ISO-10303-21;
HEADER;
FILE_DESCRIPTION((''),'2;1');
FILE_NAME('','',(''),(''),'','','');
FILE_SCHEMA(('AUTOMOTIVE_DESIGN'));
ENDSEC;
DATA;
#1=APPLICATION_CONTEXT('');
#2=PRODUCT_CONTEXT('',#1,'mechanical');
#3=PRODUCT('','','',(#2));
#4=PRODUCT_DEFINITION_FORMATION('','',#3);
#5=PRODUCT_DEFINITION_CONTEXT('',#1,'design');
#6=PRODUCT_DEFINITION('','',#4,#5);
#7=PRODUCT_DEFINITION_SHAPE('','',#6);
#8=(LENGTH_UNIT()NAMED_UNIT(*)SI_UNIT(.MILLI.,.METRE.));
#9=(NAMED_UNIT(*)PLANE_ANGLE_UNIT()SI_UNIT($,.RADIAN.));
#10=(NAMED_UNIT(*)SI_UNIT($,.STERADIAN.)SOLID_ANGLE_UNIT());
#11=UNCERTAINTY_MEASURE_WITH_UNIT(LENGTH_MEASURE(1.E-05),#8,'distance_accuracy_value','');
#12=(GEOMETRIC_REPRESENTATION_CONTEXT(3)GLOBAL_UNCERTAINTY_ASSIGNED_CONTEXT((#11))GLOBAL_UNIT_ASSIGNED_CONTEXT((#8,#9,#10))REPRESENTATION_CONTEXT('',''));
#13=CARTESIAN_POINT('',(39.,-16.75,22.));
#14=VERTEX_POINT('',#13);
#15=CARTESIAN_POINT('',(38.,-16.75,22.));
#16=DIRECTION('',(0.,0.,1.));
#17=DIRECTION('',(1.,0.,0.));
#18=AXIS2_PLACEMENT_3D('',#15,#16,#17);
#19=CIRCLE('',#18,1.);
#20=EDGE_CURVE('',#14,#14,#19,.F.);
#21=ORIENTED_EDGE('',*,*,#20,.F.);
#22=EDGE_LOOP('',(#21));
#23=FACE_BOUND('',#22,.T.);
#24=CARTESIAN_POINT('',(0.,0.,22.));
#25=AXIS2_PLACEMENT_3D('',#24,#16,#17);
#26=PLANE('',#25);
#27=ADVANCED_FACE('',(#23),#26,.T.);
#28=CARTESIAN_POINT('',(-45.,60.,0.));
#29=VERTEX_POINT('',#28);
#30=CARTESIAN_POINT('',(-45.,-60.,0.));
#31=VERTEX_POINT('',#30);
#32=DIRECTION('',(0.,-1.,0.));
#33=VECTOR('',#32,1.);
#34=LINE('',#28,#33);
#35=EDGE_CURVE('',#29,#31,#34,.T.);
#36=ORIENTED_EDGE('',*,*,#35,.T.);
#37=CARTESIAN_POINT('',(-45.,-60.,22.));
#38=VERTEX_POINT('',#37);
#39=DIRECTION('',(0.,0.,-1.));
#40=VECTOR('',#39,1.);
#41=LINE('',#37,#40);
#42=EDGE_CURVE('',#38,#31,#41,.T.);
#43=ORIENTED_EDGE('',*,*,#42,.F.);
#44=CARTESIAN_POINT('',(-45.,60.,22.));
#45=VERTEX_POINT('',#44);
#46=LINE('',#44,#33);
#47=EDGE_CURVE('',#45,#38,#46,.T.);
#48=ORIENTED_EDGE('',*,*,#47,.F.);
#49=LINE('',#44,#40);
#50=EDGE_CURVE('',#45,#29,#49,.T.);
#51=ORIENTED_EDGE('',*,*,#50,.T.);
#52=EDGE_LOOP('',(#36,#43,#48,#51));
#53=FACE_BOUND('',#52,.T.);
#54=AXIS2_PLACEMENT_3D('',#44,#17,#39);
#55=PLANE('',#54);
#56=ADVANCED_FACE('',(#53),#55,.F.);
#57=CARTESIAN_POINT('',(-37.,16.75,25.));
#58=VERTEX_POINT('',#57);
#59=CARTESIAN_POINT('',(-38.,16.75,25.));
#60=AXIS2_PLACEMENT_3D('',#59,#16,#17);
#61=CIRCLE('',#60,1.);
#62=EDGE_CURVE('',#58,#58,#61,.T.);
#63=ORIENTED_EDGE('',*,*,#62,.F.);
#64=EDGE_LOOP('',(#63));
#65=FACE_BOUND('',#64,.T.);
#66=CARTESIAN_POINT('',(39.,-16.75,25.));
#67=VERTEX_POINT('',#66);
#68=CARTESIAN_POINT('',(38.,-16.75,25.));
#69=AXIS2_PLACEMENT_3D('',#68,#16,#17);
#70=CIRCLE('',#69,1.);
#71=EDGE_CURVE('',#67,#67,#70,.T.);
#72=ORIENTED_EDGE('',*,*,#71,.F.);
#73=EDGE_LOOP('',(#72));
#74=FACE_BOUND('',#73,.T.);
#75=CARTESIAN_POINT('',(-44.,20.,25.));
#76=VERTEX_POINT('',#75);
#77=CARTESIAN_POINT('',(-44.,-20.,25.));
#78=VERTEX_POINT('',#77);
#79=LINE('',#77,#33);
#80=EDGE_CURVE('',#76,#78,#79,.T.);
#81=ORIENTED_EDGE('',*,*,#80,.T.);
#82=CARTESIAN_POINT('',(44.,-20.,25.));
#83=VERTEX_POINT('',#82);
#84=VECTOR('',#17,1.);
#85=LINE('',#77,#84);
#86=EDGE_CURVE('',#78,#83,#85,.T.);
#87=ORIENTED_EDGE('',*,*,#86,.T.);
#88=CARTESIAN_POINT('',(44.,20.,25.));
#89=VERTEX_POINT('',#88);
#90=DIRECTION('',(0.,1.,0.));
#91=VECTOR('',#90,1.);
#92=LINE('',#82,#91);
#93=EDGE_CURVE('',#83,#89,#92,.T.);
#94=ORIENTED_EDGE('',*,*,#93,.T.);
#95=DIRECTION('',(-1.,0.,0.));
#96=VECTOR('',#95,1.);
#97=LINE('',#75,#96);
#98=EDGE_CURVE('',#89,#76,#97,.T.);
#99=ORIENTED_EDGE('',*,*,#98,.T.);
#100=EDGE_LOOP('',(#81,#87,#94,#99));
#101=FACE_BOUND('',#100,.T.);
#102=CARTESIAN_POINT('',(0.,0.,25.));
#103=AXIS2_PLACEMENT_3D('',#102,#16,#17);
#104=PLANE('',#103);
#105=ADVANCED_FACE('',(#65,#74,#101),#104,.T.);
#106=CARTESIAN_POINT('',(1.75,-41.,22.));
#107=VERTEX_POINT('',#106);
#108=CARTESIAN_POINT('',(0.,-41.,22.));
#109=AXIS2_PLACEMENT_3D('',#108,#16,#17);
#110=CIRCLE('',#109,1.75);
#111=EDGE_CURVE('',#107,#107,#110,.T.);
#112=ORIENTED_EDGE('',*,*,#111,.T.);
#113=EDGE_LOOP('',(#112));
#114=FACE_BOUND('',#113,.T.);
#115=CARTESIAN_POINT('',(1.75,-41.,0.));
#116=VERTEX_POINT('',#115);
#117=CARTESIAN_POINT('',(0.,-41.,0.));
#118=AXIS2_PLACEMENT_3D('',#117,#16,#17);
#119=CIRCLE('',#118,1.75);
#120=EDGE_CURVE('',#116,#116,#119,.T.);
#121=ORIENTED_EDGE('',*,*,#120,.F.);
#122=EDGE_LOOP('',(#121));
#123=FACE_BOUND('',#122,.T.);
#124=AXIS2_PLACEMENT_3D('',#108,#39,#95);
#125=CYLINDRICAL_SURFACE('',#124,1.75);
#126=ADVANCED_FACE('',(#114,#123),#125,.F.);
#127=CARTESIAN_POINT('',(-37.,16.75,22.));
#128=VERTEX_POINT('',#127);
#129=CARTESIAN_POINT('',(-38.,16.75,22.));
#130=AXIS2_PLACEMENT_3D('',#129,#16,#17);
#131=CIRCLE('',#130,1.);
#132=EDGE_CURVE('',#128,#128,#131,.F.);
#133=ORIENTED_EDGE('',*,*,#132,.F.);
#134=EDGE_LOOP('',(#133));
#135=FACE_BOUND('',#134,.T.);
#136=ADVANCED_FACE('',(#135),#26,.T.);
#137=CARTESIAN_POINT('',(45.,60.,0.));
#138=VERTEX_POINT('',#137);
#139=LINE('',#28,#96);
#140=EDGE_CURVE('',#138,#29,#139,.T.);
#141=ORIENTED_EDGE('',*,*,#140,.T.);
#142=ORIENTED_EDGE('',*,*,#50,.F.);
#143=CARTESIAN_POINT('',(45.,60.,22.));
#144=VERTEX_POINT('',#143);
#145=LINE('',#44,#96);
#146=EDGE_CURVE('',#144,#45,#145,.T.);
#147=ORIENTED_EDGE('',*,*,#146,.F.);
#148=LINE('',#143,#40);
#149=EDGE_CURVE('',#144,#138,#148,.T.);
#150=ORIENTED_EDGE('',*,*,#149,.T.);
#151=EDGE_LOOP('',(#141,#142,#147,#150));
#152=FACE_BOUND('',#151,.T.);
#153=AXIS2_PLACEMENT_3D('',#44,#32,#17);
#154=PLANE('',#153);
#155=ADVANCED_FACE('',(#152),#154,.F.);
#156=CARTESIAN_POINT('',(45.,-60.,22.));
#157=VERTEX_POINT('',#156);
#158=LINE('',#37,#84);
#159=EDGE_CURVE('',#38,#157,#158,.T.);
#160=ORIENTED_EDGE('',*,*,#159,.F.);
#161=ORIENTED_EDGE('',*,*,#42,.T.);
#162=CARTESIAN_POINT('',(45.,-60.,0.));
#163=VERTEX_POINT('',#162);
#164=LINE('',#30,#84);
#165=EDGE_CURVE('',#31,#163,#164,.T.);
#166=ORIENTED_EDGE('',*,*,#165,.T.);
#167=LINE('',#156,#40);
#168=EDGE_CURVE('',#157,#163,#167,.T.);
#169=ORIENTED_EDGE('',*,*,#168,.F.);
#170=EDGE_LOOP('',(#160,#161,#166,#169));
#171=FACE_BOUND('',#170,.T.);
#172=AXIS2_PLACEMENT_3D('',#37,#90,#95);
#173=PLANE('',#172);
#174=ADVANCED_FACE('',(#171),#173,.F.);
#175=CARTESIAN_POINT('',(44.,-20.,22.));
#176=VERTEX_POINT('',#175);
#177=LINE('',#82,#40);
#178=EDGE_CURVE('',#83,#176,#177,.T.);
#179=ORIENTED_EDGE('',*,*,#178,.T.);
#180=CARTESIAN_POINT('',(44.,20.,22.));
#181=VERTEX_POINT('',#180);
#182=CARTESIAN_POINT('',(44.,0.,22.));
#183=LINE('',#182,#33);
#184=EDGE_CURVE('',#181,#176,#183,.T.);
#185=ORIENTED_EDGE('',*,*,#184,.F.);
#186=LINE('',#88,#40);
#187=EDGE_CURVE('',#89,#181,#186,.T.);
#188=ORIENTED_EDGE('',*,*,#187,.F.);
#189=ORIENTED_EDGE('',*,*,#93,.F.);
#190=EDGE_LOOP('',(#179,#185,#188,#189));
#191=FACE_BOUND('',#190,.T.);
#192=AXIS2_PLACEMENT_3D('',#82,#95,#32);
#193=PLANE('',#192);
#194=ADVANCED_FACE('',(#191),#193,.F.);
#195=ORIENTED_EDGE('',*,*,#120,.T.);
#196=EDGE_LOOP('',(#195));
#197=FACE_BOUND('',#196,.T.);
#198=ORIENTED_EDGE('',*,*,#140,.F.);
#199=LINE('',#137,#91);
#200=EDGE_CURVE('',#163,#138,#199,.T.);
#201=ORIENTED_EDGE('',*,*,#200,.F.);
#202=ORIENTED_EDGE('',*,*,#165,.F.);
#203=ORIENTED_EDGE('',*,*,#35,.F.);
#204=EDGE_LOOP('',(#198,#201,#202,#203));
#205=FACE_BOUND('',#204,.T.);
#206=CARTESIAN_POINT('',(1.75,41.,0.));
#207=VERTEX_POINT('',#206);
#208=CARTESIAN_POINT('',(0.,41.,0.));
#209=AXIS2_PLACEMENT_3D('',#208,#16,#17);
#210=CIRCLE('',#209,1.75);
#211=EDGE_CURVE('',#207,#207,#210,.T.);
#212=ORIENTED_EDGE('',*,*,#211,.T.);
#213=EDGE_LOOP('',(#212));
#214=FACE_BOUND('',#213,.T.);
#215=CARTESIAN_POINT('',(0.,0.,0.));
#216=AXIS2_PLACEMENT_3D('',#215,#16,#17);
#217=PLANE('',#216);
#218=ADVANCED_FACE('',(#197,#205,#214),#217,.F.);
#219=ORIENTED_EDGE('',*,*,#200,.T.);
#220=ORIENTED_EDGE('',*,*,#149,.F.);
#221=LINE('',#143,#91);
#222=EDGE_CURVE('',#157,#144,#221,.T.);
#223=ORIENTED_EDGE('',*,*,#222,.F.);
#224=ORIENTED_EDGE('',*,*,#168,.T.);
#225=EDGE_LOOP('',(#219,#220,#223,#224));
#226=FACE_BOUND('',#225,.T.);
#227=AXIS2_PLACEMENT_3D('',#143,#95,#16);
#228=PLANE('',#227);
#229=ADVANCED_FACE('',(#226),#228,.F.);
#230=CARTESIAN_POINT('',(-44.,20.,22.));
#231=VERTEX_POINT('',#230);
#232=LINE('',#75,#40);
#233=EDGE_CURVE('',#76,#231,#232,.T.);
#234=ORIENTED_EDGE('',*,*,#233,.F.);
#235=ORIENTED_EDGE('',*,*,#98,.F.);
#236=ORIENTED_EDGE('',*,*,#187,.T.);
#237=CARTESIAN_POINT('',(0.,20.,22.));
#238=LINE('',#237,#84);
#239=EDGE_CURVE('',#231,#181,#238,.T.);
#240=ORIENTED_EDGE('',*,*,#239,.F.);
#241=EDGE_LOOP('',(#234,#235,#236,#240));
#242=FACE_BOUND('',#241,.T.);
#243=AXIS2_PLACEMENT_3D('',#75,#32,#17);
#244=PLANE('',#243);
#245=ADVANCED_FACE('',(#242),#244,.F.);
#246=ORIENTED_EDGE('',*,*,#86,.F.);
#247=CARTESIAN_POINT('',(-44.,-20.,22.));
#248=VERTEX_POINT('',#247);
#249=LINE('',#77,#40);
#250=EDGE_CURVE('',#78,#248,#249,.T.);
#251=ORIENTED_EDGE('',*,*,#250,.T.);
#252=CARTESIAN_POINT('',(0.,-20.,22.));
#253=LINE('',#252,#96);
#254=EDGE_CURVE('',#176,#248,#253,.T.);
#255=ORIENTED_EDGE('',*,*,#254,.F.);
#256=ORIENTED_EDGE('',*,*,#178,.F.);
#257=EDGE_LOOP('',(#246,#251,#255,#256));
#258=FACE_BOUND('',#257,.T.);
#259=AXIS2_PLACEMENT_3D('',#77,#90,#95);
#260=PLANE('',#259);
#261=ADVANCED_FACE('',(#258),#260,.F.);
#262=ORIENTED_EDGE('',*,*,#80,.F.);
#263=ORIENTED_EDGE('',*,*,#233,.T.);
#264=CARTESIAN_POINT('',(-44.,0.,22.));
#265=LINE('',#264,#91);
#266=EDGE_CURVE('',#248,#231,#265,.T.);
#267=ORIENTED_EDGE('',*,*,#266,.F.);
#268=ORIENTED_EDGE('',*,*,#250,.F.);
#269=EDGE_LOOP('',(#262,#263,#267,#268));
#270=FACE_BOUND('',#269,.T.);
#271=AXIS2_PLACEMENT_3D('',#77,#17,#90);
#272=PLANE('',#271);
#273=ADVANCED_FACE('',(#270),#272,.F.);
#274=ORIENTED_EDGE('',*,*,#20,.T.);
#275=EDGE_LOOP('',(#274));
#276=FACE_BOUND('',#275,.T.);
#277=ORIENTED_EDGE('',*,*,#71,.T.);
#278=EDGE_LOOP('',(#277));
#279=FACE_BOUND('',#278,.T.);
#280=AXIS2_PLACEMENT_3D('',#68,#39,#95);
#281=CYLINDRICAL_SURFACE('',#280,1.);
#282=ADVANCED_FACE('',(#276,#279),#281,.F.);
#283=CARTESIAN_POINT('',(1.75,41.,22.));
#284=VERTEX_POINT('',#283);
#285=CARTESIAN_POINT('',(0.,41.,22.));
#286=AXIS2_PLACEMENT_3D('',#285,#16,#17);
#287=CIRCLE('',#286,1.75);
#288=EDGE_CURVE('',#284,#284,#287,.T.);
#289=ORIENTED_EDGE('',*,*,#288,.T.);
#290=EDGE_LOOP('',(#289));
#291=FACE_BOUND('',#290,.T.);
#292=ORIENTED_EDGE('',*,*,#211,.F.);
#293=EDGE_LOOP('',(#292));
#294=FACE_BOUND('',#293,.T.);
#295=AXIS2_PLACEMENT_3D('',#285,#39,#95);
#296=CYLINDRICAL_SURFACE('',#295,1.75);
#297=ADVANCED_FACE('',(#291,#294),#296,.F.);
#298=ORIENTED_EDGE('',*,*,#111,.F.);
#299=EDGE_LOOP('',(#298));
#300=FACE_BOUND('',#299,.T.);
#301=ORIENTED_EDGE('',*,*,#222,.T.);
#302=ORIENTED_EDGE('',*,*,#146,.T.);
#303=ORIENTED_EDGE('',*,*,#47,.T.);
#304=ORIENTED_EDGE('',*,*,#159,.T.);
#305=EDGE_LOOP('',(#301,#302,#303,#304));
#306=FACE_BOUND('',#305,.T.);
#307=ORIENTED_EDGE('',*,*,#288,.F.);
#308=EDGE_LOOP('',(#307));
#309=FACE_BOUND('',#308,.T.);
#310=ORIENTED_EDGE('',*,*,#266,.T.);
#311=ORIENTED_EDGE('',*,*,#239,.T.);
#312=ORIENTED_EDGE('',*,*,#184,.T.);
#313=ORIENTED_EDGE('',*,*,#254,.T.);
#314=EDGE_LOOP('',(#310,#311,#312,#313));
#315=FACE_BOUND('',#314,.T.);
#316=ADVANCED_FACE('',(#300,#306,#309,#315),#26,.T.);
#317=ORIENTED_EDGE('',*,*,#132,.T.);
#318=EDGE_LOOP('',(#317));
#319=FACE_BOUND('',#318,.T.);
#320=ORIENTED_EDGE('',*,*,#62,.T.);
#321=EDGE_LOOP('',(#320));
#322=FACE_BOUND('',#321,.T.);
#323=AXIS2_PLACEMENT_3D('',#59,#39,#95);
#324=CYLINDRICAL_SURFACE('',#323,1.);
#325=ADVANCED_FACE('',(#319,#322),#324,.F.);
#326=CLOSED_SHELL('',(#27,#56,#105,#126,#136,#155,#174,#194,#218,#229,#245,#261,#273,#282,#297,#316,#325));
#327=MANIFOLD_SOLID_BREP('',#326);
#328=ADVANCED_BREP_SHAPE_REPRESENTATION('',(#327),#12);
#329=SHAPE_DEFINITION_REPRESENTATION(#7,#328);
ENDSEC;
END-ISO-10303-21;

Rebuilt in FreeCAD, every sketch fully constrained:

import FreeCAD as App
import Part
import Sketcher
from FreeCAD import Vector
Q = App.Units.Quantity

doc = App.newDocument("Part")
body = doc.addObject("PartDesign::Body", "Body")

sketch1 = doc.addObject("Sketcher::SketchObject", "Sketch")
body.addObject(sketch1)
sketch1.AttachmentSupport = (doc.XY_Plane, [""])
sketch1.MapMode = "FlatFace"
sketch1.addGeometry([
    Part.LineSegment(Vector(-45, 60, 0), Vector(-45, -60, 0)),
    Part.LineSegment(Vector(-45, -60, 0), Vector(45, -60, 0)),
    Part.LineSegment(Vector(45, -60, 0), Vector(45, 60, 0)),
    Part.LineSegment(Vector(45, 60, 0), Vector(-45, 60, 0)),
    Part.Circle(Vector(0, -41, 0), Vector(0, 0, 1), 1.8),
    Part.Circle(Vector(0, 41, 0), Vector(0, 0, 1), 1.8),
], False)
sketch1.addConstraint([
    Sketcher.Constraint("Coincident", 0, 2, 1, 1),
    Sketcher.Constraint("Coincident", 1, 2, 2, 1),
    Sketcher.Constraint("Coincident", 2, 2, 3, 1),
    Sketcher.Constraint("Coincident", 3, 2, 0, 1),
    Sketcher.Constraint("Vertical", 0),
    Sketcher.Constraint("Horizontal", 1),
    Sketcher.Constraint("Vertical", 2),
    Sketcher.Constraint("Horizontal", 3),
    Sketcher.Constraint("Equal", 4, 5),
    Sketcher.Constraint("Symmetric", 4, 3, 5, 3, -1, 1),
    Sketcher.Constraint("Symmetric", 0, 2, 2, 2, -1, 1),
    Sketcher.Constraint("PointOnObject", 4, 3, -2),
    Sketcher.Constraint("Diameter", 4, Q("3.5 mm")),
    Sketcher.Constraint("DistanceX", 1, 1, 1, 2, Q("90 mm")),
    Sketcher.Constraint("DistanceY", 0, 2, 0, 1, Q("120 mm")),
    Sketcher.Constraint("DistanceY", 4, 3, -1, 1, Q("41 mm")),
])
pad1 = doc.addObject("PartDesign::Pad", "Pad")
body.addObject(pad1)
pad1.Profile = sketch1
pad1.Length = 22

sketch2 = doc.addObject("Sketcher::SketchObject", "Sketch001")
body.addObject(sketch2)
sketch2.AttachmentSupport = (doc.XY_Plane, [""])
sketch2.MapMode = "FlatFace"
sketch2.addGeometry([
    Part.LineSegment(Vector(-44, 20, 0), Vector(-44, -20, 0)),
    Part.LineSegment(Vector(-44, -20, 0), Vector(44, -20, 0)),
    Part.LineSegment(Vector(44, -20, 0), Vector(44, 20, 0)),
    Part.LineSegment(Vector(44, 20, 0), Vector(-44, 20, 0)),
    Part.Circle(Vector(38, -16.8, 0), Vector(0, 0, 1), 1),
    Part.Circle(Vector(-38, 16.8, 0), Vector(0, 0, 1), 1),
], False)
sketch2.addConstraint([
    Sketcher.Constraint("Coincident", 0, 2, 1, 1),
    Sketcher.Constraint("Coincident", 1, 2, 2, 1),
    Sketcher.Constraint("Coincident", 2, 2, 3, 1),
    Sketcher.Constraint("Coincident", 3, 2, 0, 1),
    Sketcher.Constraint("Vertical", 0),
    Sketcher.Constraint("Horizontal", 1),
    Sketcher.Constraint("Vertical", 2),
    Sketcher.Constraint("Horizontal", 3),
    Sketcher.Constraint("Equal", 4, 5),
    Sketcher.Constraint("Symmetric", 4, 3, 5, 3, -1, 1),
    Sketcher.Constraint("Symmetric", 0, 2, 2, 2, -1, 1),
    Sketcher.Constraint("Diameter", 4, Q("2 mm")),
    Sketcher.Constraint("DistanceX", 1, 1, 1, 2, Q("88 mm")),
    Sketcher.Constraint("DistanceY", 0, 2, 0, 1, Q("40 mm")),
    Sketcher.Constraint("DistanceX", -1, 1, 4, 3, Q("38 mm")),
    Sketcher.Constraint("DistanceY", 4, 3, 5, 3, Q("33.5 mm")),
])
pad2 = doc.addObject("PartDesign::Pad", "Pad001")
body.addObject(pad2)
pad2.Profile = sketch2
pad2.Length = 25

doc.recompute()
